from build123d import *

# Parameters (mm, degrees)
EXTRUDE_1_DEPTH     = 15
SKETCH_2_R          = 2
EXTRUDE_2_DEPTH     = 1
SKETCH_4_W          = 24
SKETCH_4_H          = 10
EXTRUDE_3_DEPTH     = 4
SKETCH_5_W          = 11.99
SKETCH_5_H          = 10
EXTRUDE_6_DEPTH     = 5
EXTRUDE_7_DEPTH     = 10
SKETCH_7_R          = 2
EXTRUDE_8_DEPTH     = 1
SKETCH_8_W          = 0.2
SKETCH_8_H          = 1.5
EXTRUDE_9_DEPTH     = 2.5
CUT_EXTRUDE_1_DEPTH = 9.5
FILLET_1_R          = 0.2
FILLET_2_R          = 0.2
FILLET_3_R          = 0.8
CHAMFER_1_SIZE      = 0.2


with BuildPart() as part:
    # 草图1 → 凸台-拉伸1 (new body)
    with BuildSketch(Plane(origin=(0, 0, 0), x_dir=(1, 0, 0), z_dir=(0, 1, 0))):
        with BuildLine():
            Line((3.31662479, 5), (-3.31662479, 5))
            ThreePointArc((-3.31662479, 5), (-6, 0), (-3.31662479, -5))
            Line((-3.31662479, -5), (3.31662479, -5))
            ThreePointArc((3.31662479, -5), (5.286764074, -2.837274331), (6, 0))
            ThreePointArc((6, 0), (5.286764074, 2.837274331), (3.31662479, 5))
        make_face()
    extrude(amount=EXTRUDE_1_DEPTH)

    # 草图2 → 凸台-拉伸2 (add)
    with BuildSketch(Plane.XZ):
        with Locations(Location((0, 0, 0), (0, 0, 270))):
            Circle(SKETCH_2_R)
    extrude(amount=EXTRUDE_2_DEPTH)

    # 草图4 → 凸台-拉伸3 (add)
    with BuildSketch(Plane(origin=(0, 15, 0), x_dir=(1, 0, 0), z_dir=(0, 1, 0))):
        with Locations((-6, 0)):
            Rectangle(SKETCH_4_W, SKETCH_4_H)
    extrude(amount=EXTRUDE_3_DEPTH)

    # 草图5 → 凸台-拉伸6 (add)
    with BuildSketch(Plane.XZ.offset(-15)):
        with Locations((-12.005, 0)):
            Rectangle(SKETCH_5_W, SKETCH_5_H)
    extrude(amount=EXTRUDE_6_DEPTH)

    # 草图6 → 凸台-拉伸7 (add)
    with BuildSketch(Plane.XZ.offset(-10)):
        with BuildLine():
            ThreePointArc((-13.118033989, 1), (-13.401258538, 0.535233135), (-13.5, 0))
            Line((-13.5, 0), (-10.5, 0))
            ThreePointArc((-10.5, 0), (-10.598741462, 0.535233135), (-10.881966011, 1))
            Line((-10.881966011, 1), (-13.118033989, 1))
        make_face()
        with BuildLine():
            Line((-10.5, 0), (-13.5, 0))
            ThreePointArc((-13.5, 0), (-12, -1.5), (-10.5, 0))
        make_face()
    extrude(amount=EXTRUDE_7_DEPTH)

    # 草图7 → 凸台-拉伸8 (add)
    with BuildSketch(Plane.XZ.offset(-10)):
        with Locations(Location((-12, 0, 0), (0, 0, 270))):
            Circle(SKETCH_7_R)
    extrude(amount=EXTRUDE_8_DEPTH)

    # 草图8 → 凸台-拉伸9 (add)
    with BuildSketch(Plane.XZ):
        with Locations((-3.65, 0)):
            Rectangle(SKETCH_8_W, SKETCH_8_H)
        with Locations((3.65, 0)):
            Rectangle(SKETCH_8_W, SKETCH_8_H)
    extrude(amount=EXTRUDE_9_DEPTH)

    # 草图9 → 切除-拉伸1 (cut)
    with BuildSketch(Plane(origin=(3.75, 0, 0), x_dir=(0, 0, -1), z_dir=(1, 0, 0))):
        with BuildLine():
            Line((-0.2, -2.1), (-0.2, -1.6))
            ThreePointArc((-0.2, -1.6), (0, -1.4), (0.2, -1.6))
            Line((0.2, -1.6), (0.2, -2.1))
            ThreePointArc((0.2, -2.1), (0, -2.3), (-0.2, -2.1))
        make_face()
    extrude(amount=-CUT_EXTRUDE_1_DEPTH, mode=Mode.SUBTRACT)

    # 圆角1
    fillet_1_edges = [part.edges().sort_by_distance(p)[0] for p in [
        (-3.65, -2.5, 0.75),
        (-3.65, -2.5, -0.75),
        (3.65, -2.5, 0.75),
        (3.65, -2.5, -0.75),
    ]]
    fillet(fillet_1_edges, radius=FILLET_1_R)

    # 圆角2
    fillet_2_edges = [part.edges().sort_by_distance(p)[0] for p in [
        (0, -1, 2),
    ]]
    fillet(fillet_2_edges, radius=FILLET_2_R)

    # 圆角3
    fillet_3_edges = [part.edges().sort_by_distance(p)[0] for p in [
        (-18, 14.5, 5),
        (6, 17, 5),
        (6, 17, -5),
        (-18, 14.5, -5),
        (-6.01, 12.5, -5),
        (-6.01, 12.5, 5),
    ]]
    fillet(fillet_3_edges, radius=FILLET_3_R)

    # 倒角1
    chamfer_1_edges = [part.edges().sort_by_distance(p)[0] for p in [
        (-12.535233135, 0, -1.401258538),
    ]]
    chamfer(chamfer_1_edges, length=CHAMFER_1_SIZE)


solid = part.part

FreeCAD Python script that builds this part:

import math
import FreeCAD as App
import Part
import Sketcher

V = App.Vector


def edges_at(feature, points):
    """Names of the edges that pass closest to the given points."""
    edges = feature.Shape.Edges
    near = lambda p: min(range(len(edges)), key=lambda i: edges[i].distToShape(Part.Vertex(*p))[0])
    return sorted({f"Edge{near(p) + 1}" for p in points})


def add_polygon(sketch, points):
    """Adds a closed chain of lines whose ends are joined by coincident constraints."""
    first, n = sketch.GeometryCount, len(points)
    for a, b in zip(points, points[1:] + points[:1]):
        sketch.addGeometry(Part.LineSegment(App.Vector(*a, 0), App.Vector(*b, 0)), False)
    for i in range(n):
        sketch.addConstraint(Sketcher.Constraint("Coincident", first + i, 2, first + (i + 1) % n, 1))

doc = App.newDocument("Part")
body = doc.addObject("PartDesign::Body", "Body")

# Sketch on XZ plane
sketch1 = body.newObject("Sketcher::SketchObject", "Sketch")
sketch1.AttachmentSupport = (doc.getObject("XZ_Plane"), [""])
sketch1.MapMode = "FlatFace"
sketch1.addGeometry([
    Part.LineSegment(V(3, -5, 0), V(-3, -5, 0)),  # 0
    Part.ArcOfCircle(Part.Circle(V(0, 0, 0), V(0, 0, 1), 6), math.radians(124), math.radians(236)),  # 1
    Part.LineSegment(V(-3, 5, 0), V(3, 5, 0)),  # 2
    Part.ArcOfCircle(Part.Circle(V(0, 0, 0), V(0, 0, 1), 6), math.radians(0), math.radians(56)),  # 3
    Part.ArcOfCircle(Part.Circle(V(0, 0, 0), V(0, 0, 1), 6), math.radians(-56), math.radians(0)),  # 4
], False)
sketch1.addConstraint([
    Sketcher.Constraint("Coincident", 0, 2, 1, 2),
    Sketcher.Constraint("Coincident", 1, 1, 2, 1),
    Sketcher.Constraint("Coincident", 2, 2, 3, 2),
    Sketcher.Constraint("Tangent", 3, 1, 4, 2),
    Sketcher.Constraint("Coincident", 4, 1, 0, 1),
    Sketcher.Constraint("Horizontal", 0),
    Sketcher.Constraint("Horizontal", 2),
    Sketcher.Constraint("Coincident", 1, 3, -1, 1),
    Sketcher.Constraint("Coincident", 3, 3, -1, 1),
    Sketcher.Constraint("Equal", 1, 3),
    Sketcher.Constraint("Equal", 3, 4),
    Sketcher.Constraint("PointOnObject", 3, 1, -1),
    Sketcher.Constraint("Vertical", 0, 2, 1, 1),
    Sketcher.Constraint("Radius", 1, 6.0),
    Sketcher.Constraint("DistanceY", 0, 2, -1, 1, 5.0),
])
pad1 = body.newObject("PartDesign::Pad", "Pad")
pad1.Profile = sketch1
pad1.Length = 15
pad1.Reversed = True

# Sketch on XZ plane
sketch2 = body.newObject("Sketcher::SketchObject", "Sketch001")
sketch2.AttachmentSupport = (doc.getObject("XZ_Plane"), [""])
sketch2.MapMode = "FlatFace"
sketch2.addGeometry(Part.Circle(V(0, 0, 0), V(0, 0, 1), 2), False)
sketch2.addConstraint([
    Sketcher.Constraint("Coincident", 0, 3, -1, 1),
    Sketcher.Constraint("Diameter", 0, 4.0),
])
pad2 = body.newObject("PartDesign::Pad", "Pad001")
pad2.Profile = sketch2
pad2.Length = 1

# Sketch on XZ plane
sketch3 = body.newObject("Sketcher::SketchObject", "Sketch002")
sketch3.AttachmentSupport = (doc.getObject("XZ_Plane"), [""])
sketch3.MapMode = "FlatFace"
sketch3.AttachmentOffset = App.Placement(V(0, 0, -15), App.Rotation())
add_polygon(sketch3, [(-18, -5), (-18, 5), (6, 5), (6, -5)])  # lines 0-3
sketch3.addConstraint([
    Sketcher.Constraint("Vertical", 0),
    Sketcher.Constraint("Horizontal", 1),
    Sketcher.Constraint("Vertical", 2),
    Sketcher.Constraint("Horizontal", 3),
    Sketcher.Constraint("DistanceX", 1, 1, 1, 2, 24.0),
    Sketcher.Constraint("DistanceY", 0, 1, 0, 2, 10.0),
    Sketcher.Constraint("DistanceX", 0, 2, -1, 1, 18.0),
    Sketcher.Constraint("DistanceY", -1, 1, 0, 2, 5.0),
])
pad3 = body.newObject("PartDesign::Pad", "Pad002")
pad3.Profile = sketch3
pad3.Length = 4
pad3.Reversed = True

# Sketch on XZ plane
sketch4 = body.newObject("Sketcher::SketchObject", "Sketch003")
sketch4.AttachmentSupport = (doc.getObject("XZ_Plane"), [""])
sketch4.MapMode = "FlatFace"
sketch4.AttachmentOffset = App.Placement(V(0, 0, -15), App.Rotation())
add_polygon(sketch4, [(-18, 5), (-18, -5), (-6, -5), (-6, 5)])  # lines 0-3
sketch4.addConstraint([
    Sketcher.Constraint("Vertical", 0),
    Sketcher.Constraint("Horizontal", 1),
    Sketcher.Constraint("Vertical", 2),
    Sketcher.Constraint("Horizontal", 3),
    Sketcher.Constraint("DistanceY", 0, 2, 0, 1, 10.0),
    Sketcher.Constraint("DistanceX", 0, 2, -1, 1, 18.0),
    Sketcher.Constraint("DistanceY", 0, 2, -1, 1, 5.0),
    Sketcher.Constraint("DistanceX", 1, 1, 1, 2, 11.99),
])
pad4 = body.newObject("PartDesign::Pad", "Pad003")
pad4.Profile = sketch4
pad4.Length = 5

# Sketch on XZ plane
sketch5 = body.newObject("Sketcher::SketchObject", "Sketch004")
sketch5.AttachmentSupport = (doc.getObject("XZ_Plane"), [""])
sketch5.MapMode = "FlatFace"
sketch5.AttachmentOffset = App.Placement(V(0, 0, -10), App.Rotation())
sketch5.addGeometry([
    Part.ArcOfCircle(Part.Circle(V(-12, 0, 0), V(0, 0, 1), 1.5), math.radians(138), math.radians(180)),
    Part.ArcOfCircle(Part.Circle(V(-12, 0, 0), V(0, 0, 1), 1.5), math.radians(180), math.radians(360)),
    Part.ArcOfCircle(Part.Circle(V(-12, 0, 0), V(0, 0, 1), 1.5), math.radians(0), math.radians(42)),
    Part.LineSegment(V(-10.9, 1, 0), V(-13.1, 1, 0)),
], False)
sketch5.addConstraint([
    Sketcher.Constraint("Tangent", 0, 2, 1, 1),
    Sketcher.Constraint("Tangent", 1, 2, 2, 1),
    Sketcher.Constraint("Coincident", 2, 2, 3, 1),
    Sketcher.Constraint("Coincident", 3, 2, 0, 1),
    Sketcher.Constraint("Horizontal", 3),
    Sketcher.Constraint("Equal", 0, 1),
    Sketcher.Constraint("Equal", 1, 2),
    Sketcher.Constraint("PointOnObject", 0, 3, -1),
    Sketcher.Constraint("PointOnObject", 0, 2, -1),
    Sketcher.Constraint("PointOnObject", 1, 2, -1),
    Sketcher.Constraint("Radius", 0, 1.5),
    Sketcher.Constraint("DistanceX", 0, 3, -1, 1, 12.0),
    Sketcher.Constraint("DistanceY", -1, 1, 2, 2, 1.0),
])
pad5 = body.newObject("PartDesign::Pad", "Pad004")
pad5.Profile = sketch5
pad5.Length = 10

# Sketch on XZ plane
sketch6 = body.newObject("Sketcher::SketchObject", "Sketch005")
sketch6.AttachmentSupport = (doc.getObject("XZ_Plane"), [""])
sketch6.MapMode = "FlatFace"
sketch6.AttachmentOffset = App.Placement(V(0, 0, -10), App.Rotation())
sketch6.addGeometry(Part.Circle(V(-12, 0, 0), V(0, 0, 1), 2), False)
sketch6.addConstraint([
    Sketcher.Constraint("PointOnObject", 0, 3, -1),
    Sketcher.Constraint("Diameter", 0, 4.0),
    Sketcher.Constraint("DistanceX", 0, 3, -1, 1, 12.0),
])
pad6 = body.newObject("PartDesign::Pad", "Pad005")
pad6.Profile = sketch6
pad6.Length = 1

# Sketch on XZ plane
sketch7 = body.newObject("Sketcher::SketchObject", "Sketch006")
sketch7.AttachmentSupport = (doc.getObject("XZ_Plane"), [""])
sketch7.MapMode = "FlatFace"
add_polygon(sketch7, [(-3.75, 0.75), (-3.75, -0.75), (-3.55, -0.75), (-3.55, 0.75)])  # lines 0-3
add_polygon(sketch7, [(3.55, 0.75), (3.55, -0.75), (3.75, -0.75), (3.75, 0.75)])  # lines 4-7
sketch7.addConstraint([
    Sketcher.Constraint("Vertical", 0),
    Sketcher.Constraint("Horizontal", 1),
    Sketcher.Constraint("Vertical", 2),
    Sketcher.Constraint("Horizontal", 3),
    Sketcher.Constraint("Vertical", 4),
    Sketcher.Constraint("Horizontal", 5),
    Sketcher.Constraint("Vertical", 6),
    Sketcher.Constraint("Horizontal", 7),
    Sketcher.Constraint("Symmetric", 2, 2, 4, 2, -1, 1),
    Sketcher.Constraint("Symmetric", 0, 2, 6, 2, -1, 1),
    Sketcher.Constraint("Horizontal", 1, 2, 4, 2),
    Sketcher.Constraint("DistanceX", 1, 1, 1, 2, 0.2),
    Sketcher.Constraint("DistanceY", 0, 2, 0, 1, 1.5),
    Sketcher.Constraint("DistanceX", 1, 2, 4, 2, 7.1),
])
pad7 = body.newObject("PartDesign::Pad", "Pad006")
pad7.Profile = sketch7
pad7.Length = 2.5

# Sketch on YZ plane
sketch8 = body.newObject("Sketcher::SketchObject", "Sketch007")
sketch8.AttachmentSupport = (doc.getObject("YZ_Plane"), [""])
sketch8.MapMode = "FlatFace"
sketch8.AttachmentOffset = App.Placement(V(0, 0, 3.75), App.Rotation())
sketch8.addGeometry([
    Part.LineSegment(V(-1.6, 0.2, 0), V(-2.1, 0.2, 0)),
    Part.ArcOfCircle(Part.Circle(V(-2.1, 0, 0), V(0, 0, 1), 0.2), math.radians(90), math.radians(270)),
    Part.LineSegment(V(-2.1, -0.2, 0), V(-1.6, -0.2, 0)),
    Part.ArcOfCircle(Part.Circle(V(-1.6, 0, 0), V(0, 0, 1), 0.2), math.radians(-90), math.radians(90)),
], False)
sketch8.addConstraint([
    Sketcher.Constraint("Tangent", 0, 2, 1, 1),
    Sketcher.Constraint("Tangent", 1, 2, 2, 1),
    Sketcher.Constraint("Tangent", 2, 2, 3, 1),
    Sketcher.Constraint("Tangent", 3, 2, 0, 1),
    Sketcher.Constraint("Horizontal", 0),
    Sketcher.Constraint("Horizontal", 2),
    Sketcher.Constraint("PointOnObject", 1, 3, -1),
    Sketcher.Constraint("Radius", 1, 0.2),
    Sketcher.Constraint("DistanceX", 0, 2, 0, 1, 0.5),
    Sketcher.Constraint("DistanceX", 1, 3, -1, 1, 2.1),
])
pocket1 = body.newObject("PartDesign::Pocket", "Pocket")
pocket1.Profile = sketch8
pocket1.Length = 9.5
doc.recompute()

fillet = body.newObject("PartDesign::Fillet", "Fillet")
fillet.Base = (pocket1, edges_at(pocket1, [
    (-3.65, -2.5, 0.75),
    (-3.65, -2.5, -0.75),
    (3.65, -2.5, 0.75),
    (3.65, -2.5, -0.75),
]))
fillet.Radius = 0.2
doc.recompute()

fillet2 = body.newObject("PartDesign::Fillet", "Fillet001")
fillet2.Base = (fillet, edges_at(fillet, [(0, -1, 2)]))
fillet2.Radius = 0.2
doc.recompute()

fillet3 = body.newObject("PartDesign::Fillet", "Fillet002")
fillet3.Base = (fillet2, edges_at(fillet2, [
    (-18, 14.5, 5),
    (6, 17, 5),
    (6, 17, -5),
    (-18, 14.5, -5),
    (-6.01, 12.5, -5),
    (-6.01, 12.5, 5),
]))
fillet3.Radius = 0.8
doc.recompute()

chamfer = body.newObject("PartDesign::Chamfer", "Chamfer")
chamfer.Base = (fillet3, edges_at(fillet3, [(-12, 0, -1.5)]))
chamfer.Size = 0.2

doc.recompute()
